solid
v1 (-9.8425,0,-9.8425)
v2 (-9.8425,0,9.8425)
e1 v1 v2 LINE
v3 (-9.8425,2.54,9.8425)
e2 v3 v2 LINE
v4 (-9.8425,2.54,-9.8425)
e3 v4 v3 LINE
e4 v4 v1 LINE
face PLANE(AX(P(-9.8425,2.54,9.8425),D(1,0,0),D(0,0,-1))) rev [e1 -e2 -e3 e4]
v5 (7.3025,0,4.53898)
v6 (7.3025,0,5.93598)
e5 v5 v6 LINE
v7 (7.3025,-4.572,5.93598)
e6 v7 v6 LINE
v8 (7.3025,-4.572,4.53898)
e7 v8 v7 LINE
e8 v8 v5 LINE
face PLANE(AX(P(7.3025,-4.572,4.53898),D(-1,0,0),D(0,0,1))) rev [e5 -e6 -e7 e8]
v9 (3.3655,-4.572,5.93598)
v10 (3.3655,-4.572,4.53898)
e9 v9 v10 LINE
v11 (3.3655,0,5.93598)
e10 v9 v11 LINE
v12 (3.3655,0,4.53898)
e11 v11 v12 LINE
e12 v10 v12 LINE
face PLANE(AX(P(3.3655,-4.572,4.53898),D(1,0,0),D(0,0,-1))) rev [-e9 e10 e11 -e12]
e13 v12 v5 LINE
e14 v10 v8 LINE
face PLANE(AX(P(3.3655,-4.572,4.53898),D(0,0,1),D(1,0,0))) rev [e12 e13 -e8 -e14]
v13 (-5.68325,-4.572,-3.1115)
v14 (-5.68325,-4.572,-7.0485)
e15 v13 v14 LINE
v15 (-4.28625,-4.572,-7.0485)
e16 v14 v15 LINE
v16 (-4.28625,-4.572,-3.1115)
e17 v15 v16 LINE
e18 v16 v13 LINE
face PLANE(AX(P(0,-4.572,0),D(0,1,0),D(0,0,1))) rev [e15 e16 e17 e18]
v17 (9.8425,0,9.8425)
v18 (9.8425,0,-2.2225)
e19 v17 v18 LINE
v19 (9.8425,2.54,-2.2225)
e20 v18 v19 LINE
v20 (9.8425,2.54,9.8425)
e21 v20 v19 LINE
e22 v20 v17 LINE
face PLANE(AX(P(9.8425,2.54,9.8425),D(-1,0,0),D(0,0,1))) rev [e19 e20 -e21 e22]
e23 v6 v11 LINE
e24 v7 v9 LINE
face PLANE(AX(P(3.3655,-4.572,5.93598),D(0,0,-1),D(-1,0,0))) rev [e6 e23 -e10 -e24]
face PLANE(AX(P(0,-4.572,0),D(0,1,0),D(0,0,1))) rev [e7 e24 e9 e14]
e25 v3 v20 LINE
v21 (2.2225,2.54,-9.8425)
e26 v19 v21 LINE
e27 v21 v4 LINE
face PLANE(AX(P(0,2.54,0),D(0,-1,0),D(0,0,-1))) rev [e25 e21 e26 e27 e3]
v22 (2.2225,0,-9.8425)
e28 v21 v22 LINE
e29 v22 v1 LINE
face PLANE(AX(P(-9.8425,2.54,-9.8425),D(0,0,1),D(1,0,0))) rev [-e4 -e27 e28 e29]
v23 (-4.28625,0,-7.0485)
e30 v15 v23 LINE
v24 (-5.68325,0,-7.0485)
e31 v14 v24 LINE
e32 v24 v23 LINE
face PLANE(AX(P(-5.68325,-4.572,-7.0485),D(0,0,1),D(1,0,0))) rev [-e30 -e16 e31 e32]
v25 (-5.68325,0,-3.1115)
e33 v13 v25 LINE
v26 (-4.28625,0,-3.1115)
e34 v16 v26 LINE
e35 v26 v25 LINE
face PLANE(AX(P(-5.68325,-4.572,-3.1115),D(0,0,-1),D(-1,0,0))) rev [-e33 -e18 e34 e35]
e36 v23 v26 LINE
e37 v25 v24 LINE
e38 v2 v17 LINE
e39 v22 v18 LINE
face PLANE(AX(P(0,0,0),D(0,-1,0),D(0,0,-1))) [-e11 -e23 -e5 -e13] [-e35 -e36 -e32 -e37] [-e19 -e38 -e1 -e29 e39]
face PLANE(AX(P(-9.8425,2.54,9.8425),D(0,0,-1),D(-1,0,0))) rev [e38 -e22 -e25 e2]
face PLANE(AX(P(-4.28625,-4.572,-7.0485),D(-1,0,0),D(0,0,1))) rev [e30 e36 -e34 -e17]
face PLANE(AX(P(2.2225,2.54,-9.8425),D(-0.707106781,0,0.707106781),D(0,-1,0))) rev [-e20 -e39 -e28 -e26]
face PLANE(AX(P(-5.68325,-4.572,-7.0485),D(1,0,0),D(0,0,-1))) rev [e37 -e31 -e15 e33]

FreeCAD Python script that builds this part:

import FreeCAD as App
import Part
import Sketcher
Q = App.Units.Quantity


def edges_at(feature, points):
    """Names of the edges that pass closest to the given points."""
    edges = feature.Shape.Edges
    near = lambda p: min(range(len(edges)), key=lambda i: edges[i].distToShape(Part.Vertex(*p))[0])
    return sorted({f"Edge{near(p) + 1}" for p in points})


def add_polygon(sketch, points):
    """Adds a closed chain of lines whose ends are joined by coincident constraints."""
    first, n = sketch.GeometryCount, len(points)
    for a, b in zip(points, points[1:] + points[:1]):
        sketch.addGeometry(Part.LineSegment(App.Vector(*a, 0), App.Vector(*b, 0)), False)
    for i in range(n):
        sketch.addConstraint(Sketcher.Constraint("Coincident", first + i, 2, first + (i + 1) % n, 1))

doc = App.newDocument("Part")
params = doc.addObject("Spreadsheet::Sheet", "Params")
for row, (alias, value) in enumerate([
    ("sketch1_width", "0.775 in"),
    ("pad1_length", "0.1 in"),
    ("sketch2_width", "0.055 in"),
    ("sketch2_width2", "0.155 in"),
    ("pad2_length", "0.18 in"),
    ("chamfer_size", "0.3 in"),
], start=1):
    params.set(f"A{row}", alias)
    params.set(f"B{row}", "=" + value)
    params.setAlias(f"B{row}", alias)

body = doc.addObject("PartDesign::Body", "Body")

sketch1 = body.newObject("Sketcher::SketchObject", "Sketch")
sketch1.AttachmentSupport = (doc.getObject("XZ_Plane"), [""])
sketch1.MapMode = "FlatFace"
add_polygon(sketch1, [(-9.8425, -9.8425), (-9.8425, 9.8425), (9.8425, 9.8425), (9.8425, -9.8425)])
sketch1.addConstraint(Sketcher.Constraint("Vertical", 0))
sketch1.addConstraint(Sketcher.Constraint("Horizontal", 1))
sketch1.addConstraint(Sketcher.Constraint("Vertical", 2))
sketch1.addConstraint(Sketcher.Constraint("Horizontal", 3))
sketch1.addConstraint(Sketcher.Constraint("Symmetric", 0, 2, 2, 2, -1, 1))
sketch1.addConstraint(Sketcher.Constraint("Equal", 3, 0))
sketch1.addConstraint(Sketcher.Constraint("DistanceX", 1, 1, 1, 2, Q("0.775 in")))
sketch1.setExpression("Constraints[10]", "Params.sketch1_width")
pad1 = body.newObject("PartDesign::Pad", "Pad")
pad1.Profile = sketch1
pad1.setExpression("Length", "Params.pad1_length")
pad1.Reversed = True

sketch2 = body.newObject("Sketcher::SketchObject", "Sketch001")
sketch2.AttachmentSupport = (doc.getObject("XZ_Plane"), [""])
sketch2.MapMode = "FlatFace"
add_polygon(sketch2, [(-5.68325, -3.1115), (-5.68325, -7.0485), (-4.28625, -7.0485), (-4.28625, -3.1115)])
add_polygon(sketch2, [(3.3655, 5.93598), (3.3655, 4.53898), (7.3025, 4.53898), (7.3025, 5.93598)])
sketch2.addConstraint(Sketcher.Constraint("Vertical", 0))
sketch2.addConstraint(Sketcher.Constraint("Horizontal", 1))
sketch2.addConstraint(Sketcher.Constraint("Vertical", 2))
sketch2.addConstraint(Sketcher.Constraint("Horizontal", 3))
sketch2.addConstraint(Sketcher.Constraint("Vertical", 4))
sketch2.addConstraint(Sketcher.Constraint("Horizontal", 5))
sketch2.addConstraint(Sketcher.Constraint("Vertical", 6))
sketch2.addConstraint(Sketcher.Constraint("Horizontal", 7))
sketch2.addConstraint(Sketcher.Constraint("Equal", 7, 0))
sketch2.addConstraint(Sketcher.Constraint("Equal", 3, 4))
sketch2.addConstraint(Sketcher.Constraint("DistanceX", 1, 1, 1, 2, Q("0.055 in")))
sketch2.addConstraint(Sketcher.Constraint("DistanceX", 5, 1, 5, 2, Q("0.155 in")))
sketch2.addConstraint(Sketcher.Constraint("DistanceY", 0, 2, -1, 1, Q("0.2775 in")))
sketch2.addConstraint(Sketcher.Constraint("DistanceX", -1, 1, 4, 2, Q("0.1325 in")))
sketch2.addConstraint(Sketcher.Constraint("DistanceY", -1, 1, 4, 2, Q("0.1787 in")))
sketch2.addConstraint(Sketcher.Constraint("DistanceX", 0, 2, -1, 1, Q("5.68325 mm")))
sketch2.setExpression("Constraints[18]", "Params.sketch2_width")
sketch2.setExpression("Constraints[19]", "Params.sketch2_width2")
pad2 = body.newObject("PartDesign::Pad", "Pad001")
pad2.Profile = sketch2
pad2.setExpression("Length", "Params.pad2_length")
doc.recompute()

chamfer = body.newObject("PartDesign::Chamfer", "Chamfer")
chamfer.Base = (pad2, edges_at(pad2, [(9.842, 1.27, -9.842)]))
chamfer.setExpression("Size", "Params.chamfer_size")

doc.recompute()
